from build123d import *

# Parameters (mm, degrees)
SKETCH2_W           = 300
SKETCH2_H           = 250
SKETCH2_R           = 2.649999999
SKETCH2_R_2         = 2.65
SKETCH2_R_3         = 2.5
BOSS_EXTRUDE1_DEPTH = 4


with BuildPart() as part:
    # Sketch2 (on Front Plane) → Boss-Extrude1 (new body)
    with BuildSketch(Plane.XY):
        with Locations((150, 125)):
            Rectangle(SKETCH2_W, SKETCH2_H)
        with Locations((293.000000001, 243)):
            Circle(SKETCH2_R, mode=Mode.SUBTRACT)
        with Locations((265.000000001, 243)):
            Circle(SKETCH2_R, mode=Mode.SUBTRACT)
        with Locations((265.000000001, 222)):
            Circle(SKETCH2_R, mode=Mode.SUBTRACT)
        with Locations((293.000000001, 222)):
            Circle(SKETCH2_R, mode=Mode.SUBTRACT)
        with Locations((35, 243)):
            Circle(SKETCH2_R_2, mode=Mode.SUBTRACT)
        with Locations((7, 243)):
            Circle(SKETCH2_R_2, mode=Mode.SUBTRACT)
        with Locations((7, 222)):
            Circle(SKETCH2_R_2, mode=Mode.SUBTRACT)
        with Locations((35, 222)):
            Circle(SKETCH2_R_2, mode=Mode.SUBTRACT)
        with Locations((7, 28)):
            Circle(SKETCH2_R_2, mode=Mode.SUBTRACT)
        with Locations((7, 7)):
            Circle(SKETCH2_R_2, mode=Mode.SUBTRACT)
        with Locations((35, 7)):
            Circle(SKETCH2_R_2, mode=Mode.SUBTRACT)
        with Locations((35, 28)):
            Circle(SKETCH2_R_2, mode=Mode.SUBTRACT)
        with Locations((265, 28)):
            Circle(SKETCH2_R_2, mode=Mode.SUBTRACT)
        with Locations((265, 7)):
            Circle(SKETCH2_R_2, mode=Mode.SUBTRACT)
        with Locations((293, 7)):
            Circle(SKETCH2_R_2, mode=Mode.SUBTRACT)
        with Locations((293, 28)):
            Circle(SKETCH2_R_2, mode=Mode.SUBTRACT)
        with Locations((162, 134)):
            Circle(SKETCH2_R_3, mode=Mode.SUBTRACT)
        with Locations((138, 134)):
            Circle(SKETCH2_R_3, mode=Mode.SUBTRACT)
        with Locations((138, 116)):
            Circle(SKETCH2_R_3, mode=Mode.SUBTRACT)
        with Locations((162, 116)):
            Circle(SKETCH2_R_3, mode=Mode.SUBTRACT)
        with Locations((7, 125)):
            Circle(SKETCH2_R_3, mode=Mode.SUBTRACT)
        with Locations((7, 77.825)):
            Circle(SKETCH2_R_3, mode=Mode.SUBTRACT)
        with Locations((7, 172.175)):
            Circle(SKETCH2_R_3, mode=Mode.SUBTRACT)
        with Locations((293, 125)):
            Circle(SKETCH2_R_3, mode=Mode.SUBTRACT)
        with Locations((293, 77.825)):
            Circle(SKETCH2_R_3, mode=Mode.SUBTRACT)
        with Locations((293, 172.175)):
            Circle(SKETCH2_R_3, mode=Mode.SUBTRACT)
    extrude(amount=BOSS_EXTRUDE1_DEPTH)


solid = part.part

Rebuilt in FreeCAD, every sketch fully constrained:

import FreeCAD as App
import Part
import Sketcher
from FreeCAD import Vector
Q = App.Units.Quantity

doc = App.newDocument("Part")
params = doc.addObject("Spreadsheet::Sheet", "Params")
for row, (alias, value) in enumerate([
    ("sketch1_diameter", "5 mm"),
    ("sketch1_diameter2", "5.3 mm"),
    ("sketch1_width", "300 mm"),
    ("sketch1_height", "250 mm"),
    ("pad1_length", "4 mm"),
], start=1):
    params.set(f"A{row}", alias)
    params.set(f"B{row}", "=" + value)
    params.setAlias(f"B{row}", alias)

body = doc.addObject("PartDesign::Body", "Body")

# Sketch on XY plane
sketch1 = doc.addObject("Sketcher::SketchObject", "Sketch")
body.addObject(sketch1)
sketch1.AttachmentSupport = (doc.XY_Plane, [""])
sketch1.MapMode = "FlatFace"
sketch1.addGeometry(Part.LineSegment(Vector(0, 250, 0), Vector(0, 0, 0)), False)
sketch1.addGeometry(Part.LineSegment(Vector(0, 0, 0), Vector(300, 0, 0)), False)
sketch1.addGeometry(Part.LineSegment(Vector(300, 0, 0), Vector(300, 250, 0)), False)
sketch1.addGeometry(Part.LineSegment(Vector(300, 250, 0), Vector(0, 250, 0)), False)
sketch1.addGeometry(Part.Circle(Vector(7, 7, 0), Vector(0, 0, 1), 2.6), False)
sketch1.addGeometry(Part.Circle(Vector(35, 7, 0), Vector(0, 0, 1), 2.6), False)
sketch1.addGeometry(Part.Circle(Vector(7, 28, 0), Vector(0, 0, 1), 2.6), False)
sketch1.addGeometry(Part.Circle(Vector(35, 28, 0), Vector(0, 0, 1), 2.6), False)
sketch1.addGeometry(Part.Circle(Vector(7, 77.8, 0), Vector(0, 0, 1), 2.5), False)
sketch1.addGeometry(Part.Circle(Vector(138, 116, 0), Vector(0, 0, 1), 2.5), False)
sketch1.addGeometry(Part.Circle(Vector(265, 7, 0), Vector(0, 0, 1), 2.6), False)
sketch1.addGeometry(Part.Circle(Vector(293, 7, 0), Vector(0, 0, 1), 2.6), False)
sketch1.addGeometry(Part.Circle(Vector(265, 28, 0), Vector(0, 0, 1), 2.6), False)
sketch1.addGeometry(Part.Circle(Vector(293, 28, 0), Vector(0, 0, 1), 2.6), False)
sketch1.addGeometry(Part.Circle(Vector(162, 116, 0), Vector(0, 0, 1), 2.5), False)
sketch1.addGeometry(Part.Circle(Vector(293, 77.8, 0), Vector(0, 0, 1), 2.5), False)
sketch1.addGeometry(Part.Circle(Vector(7, 125, 0), Vector(0, 0, 1), 2.5), False)
sketch1.addGeometry(Part.Circle(Vector(7, 172.2, 0), Vector(0, 0, 1), 2.5), False)
sketch1.addGeometry(Part.Circle(Vector(138, 134, 0), Vector(0, 0, 1), 2.5), False)
sketch1.addGeometry(Part.Circle(Vector(7, 222, 0), Vector(0, 0, 1), 2.6), False)
sketch1.addGeometry(Part.Circle(Vector(35, 222, 0), Vector(0, 0, 1), 2.6), False)
sketch1.addGeometry(Part.Circle(Vector(7, 243, 0), Vector(0, 0, 1), 2.6), False)
sketch1.addGeometry(Part.Circle(Vector(35, 243, 0), Vector(0, 0, 1), 2.6), False)
sketch1.addGeometry(Part.Circle(Vector(162, 134, 0), Vector(0, 0, 1), 2.5), False)
sketch1.addGeometry(Part.Circle(Vector(293, 125, 0), Vector(0, 0, 1), 2.5), False)
sketch1.addGeometry(Part.Circle(Vector(293, 172.2, 0), Vector(0, 0, 1), 2.5), False)
sketch1.addGeometry(Part.Circle(Vector(265, 222, 0), Vector(0, 0, 1), 2.6), False)
sketch1.addGeometry(Part.Circle(Vector(293, 222, 0), Vector(0, 0, 1), 2.6), False)
sketch1.addGeometry(Part.Circle(Vector(265, 243, 0), Vector(0, 0, 1), 2.6), False)
sketch1.addGeometry(Part.Circle(Vector(293, 243, 0), Vector(0, 0, 1), 2.6), False)
sketch1.addConstraint(Sketcher.Constraint("Coincident", 0, 2, 1, 1))
sketch1.addConstraint(Sketcher.Constraint("Coincident", 1, 2, 2, 1))
sketch1.addConstraint(Sketcher.Constraint("Coincident", 2, 2, 3, 1))
sketch1.addConstraint(Sketcher.Constraint("Coincident", 3, 2, 0, 1))
sketch1.addConstraint(Sketcher.Constraint("Vertical", 0))
sketch1.addConstraint(Sketcher.Constraint("Horizontal", 1))
sketch1.addConstraint(Sketcher.Constraint("Vertical", 2))
sketch1.addConstraint(Sketcher.Constraint("Horizontal", 3))
sketch1.addConstraint(Sketcher.Constraint("Coincident", 0, 2, -1, 1))
sketch1.addConstraint(Sketcher.Constraint("Equal", 4, 5))
sketch1.addConstraint(Sketcher.Constraint("Equal", 5, 6))
sketch1.addConstraint(Sketcher.Constraint("Equal", 6, 7))
sketch1.addConstraint(Sketcher.Constraint("Equal", 8, 9))
sketch1.addConstraint(Sketcher.Constraint("Equal", 7, 10))
sketch1.addConstraint(Sketcher.Constraint("Equal", 10, 11))
sketch1.addConstraint(Sketcher.Constraint("Equal", 11, 12))
sketch1.addConstraint(Sketcher.Constraint("Equal", 12, 13))
sketch1.addConstraint(Sketcher.Constraint("Equal", 9, 14))
sketch1.addConstraint(Sketcher.Constraint("Equal", 14, 15))
sketch1.addConstraint(Sketcher.Constraint("Equal", 15, 16))
sketch1.addConstraint(Sketcher.Constraint("Equal", 16, 17))
sketch1.addConstraint(Sketcher.Constraint("Equal", 17, 18))
sketch1.addConstraint(Sketcher.Constraint("Equal", 13, 19))
sketch1.addConstraint(Sketcher.Constraint("Equal", 19, 20))
sketch1.addConstraint(Sketcher.Constraint("Equal", 20, 21))
sketch1.addConstraint(Sketcher.Constraint("Equal", 21, 22))
sketch1.addConstraint(Sketcher.Constraint("Equal", 18, 23))
sketch1.addConstraint(Sketcher.Constraint("Equal", 23, 24))
sketch1.addConstraint(Sketcher.Constraint("Equal", 24, 25))
sketch1.addConstraint(Sketcher.Constraint("Equal", 22, 26))
sketch1.addConstraint(Sketcher.Constraint("Equal", 26, 27))
sketch1.addConstraint(Sketcher.Constraint("Equal", 27, 28))
sketch1.addConstraint(Sketcher.Constraint("Equal", 28, 29))
sketch1.addConstraint(Sketcher.Constraint("Horizontal", 4, 3, 5, 3))
sketch1.addConstraint(Sketcher.Constraint("Horizontal", 6, 3, 7, 3))
sketch1.addConstraint(Sketcher.Constraint("Horizontal", 5, 3, 10, 3))
sketch1.addConstraint(Sketcher.Constraint("Horizontal", 10, 3, 11, 3))
sketch1.addConstraint(Sketcher.Constraint("Horizontal", 7, 3, 12, 3))
sketch1.addConstraint(Sketcher.Constraint("Horizontal", 12, 3, 13, 3))
sketch1.addConstraint(Sketcher.Constraint("Horizontal", 9, 3, 14, 3))
sketch1.addConstraint(Sketcher.Constraint("Horizontal", 8, 3, 15, 3))
sketch1.addConstraint(Sketcher.Constraint("Horizontal", 19, 3, 20, 3))
sketch1.addConstraint(Sketcher.Constraint("Horizontal", 21, 3, 22, 3))
sketch1.addConstraint(Sketcher.Constraint("Horizontal", 18, 3, 23, 3))
sketch1.addConstraint(Sketcher.Constraint("Horizontal", 16, 3, 24, 3))
sketch1.addConstraint(Sketcher.Constraint("Horizontal", 17, 3, 25, 3))
sketch1.addConstraint(Sketcher.Constraint("Horizontal", 20, 3, 26, 3))
sketch1.addConstraint(Sketcher.Constraint("Horizontal", 26, 3, 27, 3))
sketch1.addConstraint(Sketcher.Constraint("Horizontal", 22, 3, 28, 3))
sketch1.addConstraint(Sketcher.Constraint("Horizontal", 28, 3, 29, 3))
sketch1.addConstraint(Sketcher.Constraint("Vertical", 4, 3, 6, 3))
sketch1.addConstraint(Sketcher.Constraint("Vertical", 5, 3, 7, 3))
sketch1.addConstraint(Sketcher.Constraint("Vertical", 6, 3, 8, 3))
sketch1.addConstraint(Sketcher.Constraint("Vertical", 10, 3, 12, 3))
sketch1.addConstraint(Sketcher.Constraint("Vertical", 11, 3, 13, 3))
sketch1.addConstraint(Sketcher.Constraint("Vertical", 13, 3, 15, 3))
sketch1.addConstraint(Sketcher.Constraint("Vertical", 8, 3, 16, 3))
sketch1.addConstraint(Sketcher.Constraint("Vertical", 16, 3, 17, 3))
sketch1.addConstraint(Sketcher.Constraint("Vertical", 9, 3, 18, 3))
sketch1.addConstraint(Sketcher.Constraint("Vertical", 17, 3, 19, 3))
sketch1.addConstraint(Sketcher.Constraint("Vertical", 7, 3, 20, 3))
sketch1.addConstraint(Sketcher.Constraint("Vertical", 19, 3, 21, 3))
sketch1.addConstraint(Sketcher.Constraint("Vertical", 20, 3, 22, 3))
sketch1.addConstraint(Sketcher.Constraint("Vertical", 14, 3, 23, 3))
sketch1.addConstraint(Sketcher.Constraint("Vertical", 15, 3, 24, 3))
sketch1.addConstraint(Sketcher.Constraint("Vertical", 24, 3, 25, 3))
sketch1.addConstraint(Sketcher.Constraint("Vertical", 12, 3, 26, 3))
sketch1.addConstraint(Sketcher.Constraint("Vertical", 25, 3, 27, 3))
sketch1.addConstraint(Sketcher.Constraint("Vertical", 26, 3, 28, 3))
sketch1.addConstraint(Sketcher.Constraint("Vertical", 27, 3, 29, 3))
sketch1.addConstraint(Sketcher.Constraint("Diameter", 8, Q("5 mm")))
sketch1.addConstraint(Sketcher.Constraint("Diameter", 4, Q("5.3 mm")))
sketch1.addConstraint(Sketcher.Constraint("DistanceX", 1, 1, 1, 2, Q("300 mm")))
sketch1.addConstraint(Sketcher.Constraint("DistanceY", 0, 2, 0, 1, Q("250 mm")))
sketch1.addConstraint(Sketcher.Constraint("DistanceX", -1, 1, 4, 3, Q("7 mm")))
sketch1.addConstraint(Sketcher.Constraint("DistanceY", -1, 1, 4, 3, Q("7 mm")))
sketch1.addConstraint(Sketcher.Constraint("DistanceX", -1, 1, 5, 3, Q("35 mm")))
sketch1.addConstraint(Sketcher.Constraint("DistanceY", -1, 1, 6, 3, Q("28 mm")))
sketch1.addConstraint(Sketcher.Constraint("DistanceX", -1, 1, 9, 3, Q("138 mm")))
sketch1.addConstraint(Sketcher.Constraint("DistanceY", -1, 1, 9, 3, Q("116 mm")))
sketch1.addConstraint(Sketcher.Constraint("DistanceX", -1, 1, 10, 3, Q("265 mm")))
sketch1.addConstraint(Sketcher.Constraint("DistanceX", -1, 1, 11, 3, Q("293 mm")))
sketch1.addConstraint(Sketcher.Constraint("DistanceX", -1, 1, 14, 3, Q("162 mm")))
sketch1.addConstraint(Sketcher.Constraint("DistanceY", -1, 1, 16, 3, Q("125 mm")))
sketch1.addConstraint(Sketcher.Constraint("DistanceY", -1, 1, 18, 3, Q("134 mm")))
sketch1.addConstraint(Sketcher.Constraint("DistanceY", -1, 1, 19, 3, Q("222 mm")))
sketch1.addConstraint(Sketcher.Constraint("DistanceY", -1, 1, 21, 3, Q("243 mm")))
sketch1.addConstraint(Sketcher.Constraint("DistanceY", 8, 3, 17, 3, Q("94.35 mm")))
sketch1.addConstraint(Sketcher.Constraint("DistanceY", -1, 1, 8, 3, Q("77.825 mm")))
sketch1.setExpression("Constraints[70]", "Params.sketch1_diameter")
sketch1.setExpression("Constraints[71]", "Params.sketch1_diameter2")
sketch1.setExpression("Constraints[72]", "Params.sketch1_width")
sketch1.setExpression("Constraints[73]", "Params.sketch1_height")
pad1 = doc.addObject("PartDesign::Pad", "Pad")
body.addObject(pad1)
pad1.Profile = sketch1
pad1.setExpression("Length", "Params.pad1_length")

doc.recompute()
